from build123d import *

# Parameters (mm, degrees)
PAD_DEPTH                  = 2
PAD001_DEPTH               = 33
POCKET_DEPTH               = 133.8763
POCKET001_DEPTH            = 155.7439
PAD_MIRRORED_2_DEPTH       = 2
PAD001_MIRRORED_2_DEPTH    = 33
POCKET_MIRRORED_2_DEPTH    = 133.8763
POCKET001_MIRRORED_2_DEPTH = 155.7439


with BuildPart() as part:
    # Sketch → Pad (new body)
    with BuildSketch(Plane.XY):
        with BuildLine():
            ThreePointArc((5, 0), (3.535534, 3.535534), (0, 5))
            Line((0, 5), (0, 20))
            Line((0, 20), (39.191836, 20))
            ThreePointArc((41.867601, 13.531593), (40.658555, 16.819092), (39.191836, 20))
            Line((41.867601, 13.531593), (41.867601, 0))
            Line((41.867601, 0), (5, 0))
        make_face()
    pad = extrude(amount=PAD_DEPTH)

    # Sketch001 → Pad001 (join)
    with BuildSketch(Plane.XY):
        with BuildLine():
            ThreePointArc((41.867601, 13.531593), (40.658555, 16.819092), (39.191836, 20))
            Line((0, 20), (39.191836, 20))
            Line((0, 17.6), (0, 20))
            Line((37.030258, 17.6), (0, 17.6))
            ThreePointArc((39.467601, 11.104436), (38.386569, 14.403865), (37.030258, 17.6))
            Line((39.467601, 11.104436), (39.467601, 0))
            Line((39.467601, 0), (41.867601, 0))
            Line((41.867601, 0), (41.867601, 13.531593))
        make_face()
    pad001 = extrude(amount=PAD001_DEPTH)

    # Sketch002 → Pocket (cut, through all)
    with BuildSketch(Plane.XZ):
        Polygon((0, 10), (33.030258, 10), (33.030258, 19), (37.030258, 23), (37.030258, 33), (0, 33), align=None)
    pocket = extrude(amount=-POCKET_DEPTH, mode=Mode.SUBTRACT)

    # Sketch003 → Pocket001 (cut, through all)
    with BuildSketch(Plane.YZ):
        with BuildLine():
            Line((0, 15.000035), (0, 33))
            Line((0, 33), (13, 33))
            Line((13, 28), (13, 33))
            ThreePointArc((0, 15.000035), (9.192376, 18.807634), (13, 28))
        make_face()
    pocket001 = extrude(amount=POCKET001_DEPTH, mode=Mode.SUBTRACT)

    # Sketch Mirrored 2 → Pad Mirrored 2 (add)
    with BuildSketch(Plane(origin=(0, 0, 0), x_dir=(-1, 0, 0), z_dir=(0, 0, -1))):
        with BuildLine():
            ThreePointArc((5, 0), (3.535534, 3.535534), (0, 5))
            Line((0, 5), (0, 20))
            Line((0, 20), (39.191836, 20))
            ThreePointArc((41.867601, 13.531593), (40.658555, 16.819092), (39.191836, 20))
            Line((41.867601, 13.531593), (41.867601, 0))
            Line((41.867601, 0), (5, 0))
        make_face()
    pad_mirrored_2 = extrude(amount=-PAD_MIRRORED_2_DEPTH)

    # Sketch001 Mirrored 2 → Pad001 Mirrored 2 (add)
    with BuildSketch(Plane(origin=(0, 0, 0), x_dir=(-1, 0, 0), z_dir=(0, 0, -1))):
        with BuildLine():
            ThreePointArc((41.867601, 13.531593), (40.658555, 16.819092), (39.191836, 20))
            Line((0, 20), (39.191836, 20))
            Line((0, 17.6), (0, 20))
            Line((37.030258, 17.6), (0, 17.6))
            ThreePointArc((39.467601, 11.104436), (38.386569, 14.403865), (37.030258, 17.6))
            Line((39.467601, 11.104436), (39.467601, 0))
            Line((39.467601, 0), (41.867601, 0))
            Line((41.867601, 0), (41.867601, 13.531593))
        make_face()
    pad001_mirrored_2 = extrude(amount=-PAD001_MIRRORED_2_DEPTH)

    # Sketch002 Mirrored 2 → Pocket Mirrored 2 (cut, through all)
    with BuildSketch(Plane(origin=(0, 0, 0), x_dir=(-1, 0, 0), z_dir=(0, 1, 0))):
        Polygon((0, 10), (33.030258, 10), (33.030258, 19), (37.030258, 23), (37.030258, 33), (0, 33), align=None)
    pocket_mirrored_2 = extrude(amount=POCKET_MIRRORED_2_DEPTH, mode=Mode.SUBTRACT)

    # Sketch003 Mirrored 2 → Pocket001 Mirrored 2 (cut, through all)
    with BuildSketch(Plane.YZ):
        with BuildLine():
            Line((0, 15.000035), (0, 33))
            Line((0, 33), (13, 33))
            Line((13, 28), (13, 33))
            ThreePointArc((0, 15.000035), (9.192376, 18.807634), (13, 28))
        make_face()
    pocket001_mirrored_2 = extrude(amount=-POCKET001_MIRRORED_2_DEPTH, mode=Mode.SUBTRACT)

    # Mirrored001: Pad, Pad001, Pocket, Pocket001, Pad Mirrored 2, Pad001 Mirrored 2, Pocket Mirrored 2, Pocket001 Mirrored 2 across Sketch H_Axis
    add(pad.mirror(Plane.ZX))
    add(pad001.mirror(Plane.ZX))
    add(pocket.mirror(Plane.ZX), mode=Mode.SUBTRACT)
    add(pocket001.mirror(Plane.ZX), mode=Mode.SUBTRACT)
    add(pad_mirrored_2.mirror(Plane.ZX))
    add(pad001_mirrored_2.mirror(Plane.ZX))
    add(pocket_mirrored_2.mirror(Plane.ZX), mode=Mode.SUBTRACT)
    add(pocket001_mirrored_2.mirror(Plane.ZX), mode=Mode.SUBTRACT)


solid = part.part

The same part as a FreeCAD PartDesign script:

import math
import FreeCAD as App
import Part
import Sketcher
from FreeCAD import Vector
Q = App.Units.Quantity

doc = App.newDocument("Part")
body = doc.addObject("PartDesign::Body", "Body")

# Sketch on XY plane
sketch1 = body.newObject("Sketcher::SketchObject", "Sketch")
sketch1.AttachmentSupport = (doc.getObject("XY_Plane"), [""])
sketch1.MapMode = "FlatFace"
sketch1.addGeometry([
    Part.ArcOfCircle(Part.Circle(Vector(0, 0, 0), Vector(0, 0, 1), 5), math.radians(0), math.radians(90)),  # 0
    Part.LineSegment(Vector(5, 0, 0), Vector(41.9, 0, 0)),  # 1
    Part.LineSegment(Vector(41.9, 0, 0), Vector(41.9, 13.5, 0)),  # 2
    Part.ArcOfCircle(Part.Circle(Vector(0, 0, 0), Vector(0, 0, 1), 44), math.radians(17.91), math.radians(27.04)),  # 3
    Part.LineSegment(Vector(39.2, 20, 0), Vector(0, 20, 0)),  # 4
    Part.LineSegment(Vector(0, 20, 0), Vector(0, 5, 0)),  # 5
], False)
sketch1.addConstraint([
    Sketcher.Constraint("Coincident", 0, 1, 1, 1),
    Sketcher.Constraint("Coincident", 1, 2, 2, 1),
    Sketcher.Constraint("Coincident", 2, 2, 3, 1),
    Sketcher.Constraint("Coincident", 3, 2, 4, 1),
    Sketcher.Constraint("Coincident", 4, 2, 5, 1),
    Sketcher.Constraint("Coincident", 5, 2, 0, 2),
    Sketcher.Constraint("Horizontal", 1),
    Sketcher.Constraint("Vertical", 2),
    Sketcher.Constraint("Horizontal", 4),
    Sketcher.Constraint("Vertical", 5),
    Sketcher.Constraint("Coincident", 0, 3, -1, 1),
    Sketcher.Constraint("PointOnObject", 0, 1, -1),
    Sketcher.Constraint("PointOnObject", 4, 2, -2),
    Sketcher.Constraint("Radius", 0, Q("5 mm")),
    Sketcher.Constraint("DistanceY", 5, 2, 5, 1, Q("15 mm")),
    Sketcher.Constraint("DistanceX", 1, 1, 1, 2, Q("36.867601 mm")),
    Sketcher.Constraint("Radius", 3, Q("44.000234 mm")),
    Sketcher.Constraint("DistanceX", 4, 2, 4, 1, Q("39.191836 mm")),
    Sketcher.Constraint("DistanceY", 2, 1, 2, 2, Q("13.531593 mm")),
])
pad1 = body.newObject("PartDesign::Pad", "Pad")
pad1.Profile = sketch1
pad1.Length = 2

# Sketch on XY plane
sketch2 = body.newObject("Sketcher::SketchObject", "Sketch001")
sketch2.AttachmentSupport = (doc.getObject("XY_Plane"), [""])
sketch2.MapMode = "FlatFace"
sketch2.addGeometry([
    Part.ArcOfCircle(Part.Circle(Vector(0, 0, 0), Vector(0, 0, 1), 44), math.radians(17.91), math.radians(27.04)),  # 0
    Part.LineSegment(Vector(39.2, 20, 0), Vector(0, 20, 0)),  # 1
    Part.LineSegment(Vector(0, 20, 0), Vector(0, 17.6, 0)),  # 2
    Part.LineSegment(Vector(0, 17.6, 0), Vector(37, 17.6, 0)),  # 3
    Part.ArcOfCircle(Part.Circle(Vector(0, 0, 0), Vector(0, 0, 1), 41), math.radians(15.71), math.radians(25.42)),  # 4
    Part.LineSegment(Vector(39.5, 11.1, 0), Vector(39.5, 0, 0)),  # 5
    Part.LineSegment(Vector(39.5, 0, 0), Vector(41.9, 0, 0)),  # 6
    Part.LineSegment(Vector(41.9, 0, 0), Vector(41.9, 13.5, 0)),  # 7
], False)
sketch2.addConstraint([
    Sketcher.Constraint("Coincident", 0, 2, 1, 1),
    Sketcher.Constraint("Coincident", 1, 2, 2, 1),
    Sketcher.Constraint("Coincident", 2, 2, 3, 1),
    Sketcher.Constraint("Coincident", 3, 2, 4, 2),
    Sketcher.Constraint("Coincident", 4, 1, 5, 1),
    Sketcher.Constraint("Coincident", 5, 2, 6, 1),
    Sketcher.Constraint("Coincident", 6, 2, 7, 1),
    Sketcher.Constraint("Coincident", 7, 2, 0, 1),
    Sketcher.Constraint("Horizontal", 1),
    Sketcher.Constraint("Vertical", 2),
    Sketcher.Constraint("Horizontal", 3),
    Sketcher.Constraint("Vertical", 5),
    Sketcher.Constraint("Horizontal", 6),
    Sketcher.Constraint("Vertical", 7),
    Sketcher.Constraint("PointOnObject", 1, 2, -2),
    Sketcher.Constraint("PointOnObject", 5, 2, -1),
    Sketcher.Constraint("Equal", 6, 2),
    Sketcher.Constraint("DistanceX", 6, 1, 6, 2, Q("2.4 mm")),
    Sketcher.Constraint("DistanceY", -1, 1, 0, 2, Q("20 mm")),
    Sketcher.Constraint("Radius", 0, Q("44.000234 mm")),
    Sketcher.Constraint("Radius", 4, Q("41.000038 mm")),
    Sketcher.Constraint("DistanceX", 3, 1, 3, 2, Q("37.030258 mm")),
    Sketcher.Constraint("DistanceX", -1, 1, 4, 1, Q("39.467601 mm")),
    Sketcher.Constraint("DistanceX", 1, 2, 1, 1, Q("39.191836 mm")),
    Sketcher.Constraint("DistanceY", 5, 2, 5, 1, Q("11.104436 mm")),
    Sketcher.Constraint("DistanceY", 7, 1, 7, 2, Q("13.531593 mm")),
])
pad2 = body.newObject("PartDesign::Pad", "Pad001")
pad2.Profile = sketch2
pad2.Length = 33

# Sketch on XZ plane
sketch3 = body.newObject("Sketcher::SketchObject", "Sketch002")
sketch3.AttachmentSupport = (doc.getObject("XZ_Plane"), [""])
sketch3.MapMode = "FlatFace"
sketch3.addGeometry([
    Part.LineSegment(Vector(0, 10, 0), Vector(33, 10, 0)),  # 0
    Part.LineSegment(Vector(33, 10, 0), Vector(33, 19, 0)),  # 1
    Part.LineSegment(Vector(33, 19, 0), Vector(37, 23, 0)),  # 2
    Part.LineSegment(Vector(37, 23, 0), Vector(37, 33, 0)),  # 3
    Part.LineSegment(Vector(37, 33, 0), Vector(0, 33, 0)),  # 4
    Part.LineSegment(Vector(0, 33, 0), Vector(0, 10, 0)),  # 5
], False)
sketch3.addConstraint([
    Sketcher.Constraint("Coincident", 0, 2, 1, 1),
    Sketcher.Constraint("Coincident", 1, 2, 2, 1),
    Sketcher.Constraint("Coincident", 2, 2, 3, 1),
    Sketcher.Constraint("Coincident", 3, 2, 4, 1),
    Sketcher.Constraint("Coincident", 4, 2, 5, 1),
    Sketcher.Constraint("Coincident", 5, 2, 0, 1),
    Sketcher.Constraint("Horizontal", 0),
    Sketcher.Constraint("Vertical", 1),
    Sketcher.Constraint("Vertical", 3),
    Sketcher.Constraint("Horizontal", 4),
    Sketcher.Constraint("Vertical", 5),
    Sketcher.Constraint("PointOnObject", 4, 2, -2),
    Sketcher.Constraint("DistanceY", 1, 1, 1, 2, Q("9 mm")),
    Sketcher.Constraint("DistanceY", 3, 1, 3, 2, Q("10 mm")),
    Sketcher.Constraint("DistanceY", 5, 2, 5, 1, Q("23 mm")),
    Sketcher.Constraint("Angle", 2, Q("45 deg")),
    Sketcher.Constraint("DistanceY", -1, 1, 0, 2, Q("10 mm")),
    Sketcher.Constraint("DistanceX", 0, 1, 0, 2, Q("33.030258 mm")),
])
pocket1 = body.newObject("PartDesign::Pocket", "Pocket")
pocket1.Profile = sketch3
pocket1.Type = "ThroughAll"

# Sketch on YZ plane
sketch4 = body.newObject("Sketcher::SketchObject", "Sketch003")
sketch4.AttachmentSupport = (doc.getObject("YZ_Plane"), [""])
sketch4.MapMode = "FlatFace"
sketch4.addGeometry([
    Part.LineSegment(Vector(0, 33, 0), Vector(0, 15, 0)),
    Part.ArcOfCircle(Part.Circle(Vector(0, 28, 0), Vector(0, 0, 1), 13), math.radians(-90), math.radians(0)),
    Part.LineSegment(Vector(13, 28, 0), Vector(13, 33, 0)),
    Part.LineSegment(Vector(13, 33, 0), Vector(0, 33, 0)),
], False)
sketch4.addConstraint([
    Sketcher.Constraint("Coincident", 0, 2, 1, 1),
    Sketcher.Constraint("Coincident", 1, 2, 2, 1),
    Sketcher.Constraint("Coincident", 2, 2, 3, 1),
    Sketcher.Constraint("Coincident", 3, 2, 0, 1),
    Sketcher.Constraint("Vertical", 0),
    Sketcher.Constraint("Vertical", 2),
    Sketcher.Constraint("Horizontal", 3),
    Sketcher.Constraint("PointOnObject", 1, 3, -2),
    Sketcher.Constraint("PointOnObject", 0, 2, -2),
    Sketcher.Constraint("Radius", 1, Q("12.999999 mm")),
    Sketcher.Constraint("DistanceY", 2, 1, 2, 2, Q("5 mm")),
    Sketcher.Constraint("DistanceY", -1, 1, 1, 2, Q("28 mm")),
    Sketcher.Constraint("DistanceY", 0, 2, 0, 1, Q("17.999965 mm")),
])
pocket2 = body.newObject("PartDesign::Pocket", "Pocket001")
pocket2.Profile = sketch4
pocket2.Type = "ThroughAll"
pocket2.Reversed = True

# Sketch on XY plane
sketch5 = body.newObject("Sketcher::SketchObject", "Sketch004")
sketch5.AttachmentSupport = (doc.getObject("XY_Plane"), [""])
sketch5.MapMode = "FlatFace"
sketch5.addGeometry([
    Part.ArcOfCircle(Part.Circle(Vector(0, 0, 0), Vector(0, 0, 1), 5), math.radians(90), math.radians(180)),  # 0
    Part.LineSegment(Vector(-5, 0, 0), Vector(-41.9, 0, 0)),  # 1
    Part.LineSegment(Vector(-41.9, 0, 0), Vector(-41.9, 13.5, 0)),  # 2
    Part.ArcOfCircle(Part.Circle(Vector(0, 0, 0), Vector(0, 0, 1), 44), math.radians(152.96), math.radians(162.09)),  # 3
    Part.LineSegment(Vector(-39.2, 20, 0), Vector(0, 20, 0)),  # 4
    Part.LineSegment(Vector(0, 20, 0), Vector(0, 5, 0)),  # 5
], False)
sketch5.addConstraint([
    Sketcher.Constraint("Coincident", 0, 2, 1, 1),
    Sketcher.Constraint("Coincident", 1, 2, 2, 1),
    Sketcher.Constraint("Coincident", 2, 2, 3, 2),
    Sketcher.Constraint("Coincident", 3, 1, 4, 1),
    Sketcher.Constraint("Coincident", 4, 2, 5, 1),
    Sketcher.Constraint("Coincident", 5, 2, 0, 1),
    Sketcher.Constraint("Horizontal", 1),
    Sketcher.Constraint("Vertical", 2),
    Sketcher.Constraint("Horizontal", 4),
    Sketcher.Constraint("Vertical", 5),
    Sketcher.Constraint("Coincident", 0, 3, -1, 1),
    Sketcher.Constraint("PointOnObject", 0, 2, -1),
    Sketcher.Constraint("PointOnObject", 4, 2, -2),
    Sketcher.Constraint("Radius", 0, Q("5 mm")),
    Sketcher.Constraint("DistanceY", 5, 2, 5, 1, Q("15 mm")),
    Sketcher.Constraint("DistanceX", 1, 2, 1, 1, Q("36.867601 mm")),
    Sketcher.Constraint("Radius", 3, Q("44.000234 mm")),
    Sketcher.Constraint("DistanceX", 4, 1, 4, 2, Q("39.191836 mm")),
    Sketcher.Constraint("DistanceY", 2, 1, 2, 2, Q("13.531593 mm")),
])
pad3 = body.newObject("PartDesign::Pad", "Pad002")
pad3.Profile = sketch5
pad3.Length = 2

# Sketch on XY plane
sketch6 = body.newObject("Sketcher::SketchObject", "Sketch005")
sketch6.AttachmentSupport = (doc.getObject("XY_Plane"), [""])
sketch6.MapMode = "FlatFace"
sketch6.addGeometry([
    Part.ArcOfCircle(Part.Circle(Vector(0, 0, 0), Vector(0, 0, 1), 44), math.radians(152.96), math.radians(162.09)),  # 0
    Part.LineSegment(Vector(-39.2, 20, 0), Vector(0, 20, 0)),  # 1
    Part.LineSegment(Vector(0, 20, 0), Vector(0, 17.6, 0)),  # 2
    Part.LineSegment(Vector(0, 17.6, 0), Vector(-37, 17.6, 0)),  # 3
    Part.ArcOfCircle(Part.Circle(Vector(0, 0, 0), Vector(0, 0, 1), 41), math.radians(154.58), math.radians(164.29)),  # 4
    Part.LineSegment(Vector(-39.5, 11.1, 0), Vector(-39.5, 0, 0)),  # 5
    Part.LineSegment(Vector(-39.5, 0, 0), Vector(-41.9, 0, 0)),  # 6
    Part.LineSegment(Vector(-41.9, 0, 0), Vector(-41.9, 13.5, 0)),  # 7
], False)
sketch6.addConstraint([
    Sketcher.Constraint("Coincident", 0, 1, 1, 1),
    Sketcher.Constraint("Coincident", 1, 2, 2, 1),
    Sketcher.Constraint("Coincident", 2, 2, 3, 1),
    Sketcher.Constraint("Coincident", 3, 2, 4, 1),
    Sketcher.Constraint("Coincident", 4, 2, 5, 1),
    Sketcher.Constraint("Coincident", 5, 2, 6, 1),
    Sketcher.Constraint("Coincident", 6, 2, 7, 1),
    Sketcher.Constraint("Coincident", 7, 2, 0, 2),
    Sketcher.Constraint("Horizontal", 1),
    Sketcher.Constraint("Vertical", 2),
    Sketcher.Constraint("Horizontal", 3),
    Sketcher.Constraint("Vertical", 5),
    Sketcher.Constraint("Horizontal", 6),
    Sketcher.Constraint("Vertical", 7),
    Sketcher.Constraint("PointOnObject", 1, 2, -2),
    Sketcher.Constraint("PointOnObject", 5, 2, -1),
    Sketcher.Constraint("Equal", 6, 2),
    Sketcher.Constraint("DistanceX", 6, 2, 6, 1, Q("2.4 mm")),
    Sketcher.Constraint("DistanceY", -1, 1, 0, 1, Q("20 mm")),
    Sketcher.Constraint("Radius", 0, Q("44.000234 mm")),
    Sketcher.Constraint("Radius", 4, Q("41.000038 mm")),
    Sketcher.Constraint("DistanceX", 3, 2, 3, 1, Q("37.030258 mm")),
    Sketcher.Constraint("DistanceX", 4, 2, -1, 1, Q("39.467601 mm")),
    Sketcher.Constraint("DistanceX", 1, 1, 1, 2, Q("39.191836 mm")),
    Sketcher.Constraint("DistanceY", 5, 2, 5, 1, Q("11.104436 mm")),
    Sketcher.Constraint("DistanceY", 7, 1, 7, 2, Q("13.531593 mm")),
])
pad4 = body.newObject("PartDesign::Pad", "Pad003")
pad4.Profile = sketch6
pad4.Length = 33

# Sketch on XZ plane
sketch7 = body.newObject("Sketcher::SketchObject", "Sketch006")
sketch7.AttachmentSupport = (doc.getObject("XZ_Plane"), [""])
sketch7.MapMode = "FlatFace"
sketch7.addGeometry([
    Part.LineSegment(Vector(0, 10, 0), Vector(-33, 10, 0)),  # 0
    Part.LineSegment(Vector(-33, 10, 0), Vector(-33, 19, 0)),  # 1
    Part.LineSegment(Vector(-33, 19, 0), Vector(-37, 23, 0)),  # 2
    Part.LineSegment(Vector(-37, 23, 0), Vector(-37, 33, 0)),  # 3
    Part.LineSegment(Vector(-37, 33, 0), Vector(0, 33, 0)),  # 4
    Part.LineSegment(Vector(0, 33, 0), Vector(0, 10, 0)),  # 5
], False)
sketch7.addConstraint([
    Sketcher.Constraint("Coincident", 0, 2, 1, 1),
    Sketcher.Constraint("Coincident", 1, 2, 2, 1),
    Sketcher.Constraint("Coincident", 2, 2, 3, 1),
    Sketcher.Constraint("Coincident", 3, 2, 4, 1),
    Sketcher.Constraint("Coincident", 4, 2, 5, 1),
    Sketcher.Constraint("Coincident", 5, 2, 0, 1),
    Sketcher.Constraint("Horizontal", 0),
    Sketcher.Constraint("Vertical", 1),
    Sketcher.Constraint("Vertical", 3),
    Sketcher.Constraint("Horizontal", 4),
    Sketcher.Constraint("Vertical", 5),
    Sketcher.Constraint("PointOnObject", 4, 2, -2),
    Sketcher.Constraint("DistanceY", 1, 1, 1, 2, Q("9 mm")),
    Sketcher.Constraint("DistanceY", 3, 1, 3, 2, Q("10 mm")),
    Sketcher.Constraint("DistanceY", 5, 2, 5, 1, Q("23 mm")),
    Sketcher.Constraint("Angle", 2, Q("135 deg")),
    Sketcher.Constraint("DistanceY", -1, 1, 0, 2, Q("10 mm")),
    Sketcher.Constraint("DistanceX", 0, 2, 0, 1, Q("33.030258 mm")),
])
pocket3 = body.newObject("PartDesign::Pocket", "Pocket002")
pocket3.Profile = sketch7
pocket3.Type = "ThroughAll"

# Sketch on YZ plane
sketch8 = body.newObject("Sketcher::SketchObject", "Sketch007")
sketch8.AttachmentSupport = (doc.getObject("YZ_Plane"), [""])
sketch8.MapMode = "FlatFace"
sketch8.addGeometry([
    Part.LineSegment(Vector(0, 33, 0), Vector(0, 15, 0)),
    Part.ArcOfCircle(Part.Circle(Vector(0, 28, 0), Vector(0, 0, 1), 13), math.radians(-90), math.radians(0)),
    Part.LineSegment(Vector(13, 28, 0), Vector(13, 33, 0)),
    Part.LineSegment(Vector(13, 33, 0), Vector(0, 33, 0)),
], False)
sketch8.addConstraint([
    Sketcher.Constraint("Coincident", 0, 2, 1, 1),
    Sketcher.Constraint("Coincident", 1, 2, 2, 1),
    Sketcher.Constraint("Coincident", 2, 2, 3, 1),
    Sketcher.Constraint("Coincident", 3, 2, 0, 1),
    Sketcher.Constraint("Vertical", 0),
    Sketcher.Constraint("Vertical", 2),
    Sketcher.Constraint("Horizontal", 3),
    Sketcher.Constraint("PointOnObject", 1, 3, -2),
    Sketcher.Constraint("PointOnObject", 0, 2, -2),
    Sketcher.Constraint("Radius", 1, Q("12.999999 mm")),
    Sketcher.Constraint("DistanceY", 2, 1, 2, 2, Q("5 mm")),
    Sketcher.Constraint("DistanceY", -1, 1, 1, 2, Q("28 mm")),
    Sketcher.Constraint("DistanceY", 0, 2, 0, 1, Q("17.999965 mm")),
])
pocket4 = body.newObject("PartDesign::Pocket", "Pocket003")
pocket4.Profile = sketch8
pocket4.Type = "ThroughAll"
doc.recompute()

mirrored = body.newObject("PartDesign::Mirrored", "Mirrored")
mirrored.Originals = [pad1, pad2, pocket1, pocket2, pad3, pad4, pocket3, pocket4]
mirrored.MirrorPlane = (doc.getObject("XZ_Plane"), [""])
body.Tip = mirrored

doc.recompute()
